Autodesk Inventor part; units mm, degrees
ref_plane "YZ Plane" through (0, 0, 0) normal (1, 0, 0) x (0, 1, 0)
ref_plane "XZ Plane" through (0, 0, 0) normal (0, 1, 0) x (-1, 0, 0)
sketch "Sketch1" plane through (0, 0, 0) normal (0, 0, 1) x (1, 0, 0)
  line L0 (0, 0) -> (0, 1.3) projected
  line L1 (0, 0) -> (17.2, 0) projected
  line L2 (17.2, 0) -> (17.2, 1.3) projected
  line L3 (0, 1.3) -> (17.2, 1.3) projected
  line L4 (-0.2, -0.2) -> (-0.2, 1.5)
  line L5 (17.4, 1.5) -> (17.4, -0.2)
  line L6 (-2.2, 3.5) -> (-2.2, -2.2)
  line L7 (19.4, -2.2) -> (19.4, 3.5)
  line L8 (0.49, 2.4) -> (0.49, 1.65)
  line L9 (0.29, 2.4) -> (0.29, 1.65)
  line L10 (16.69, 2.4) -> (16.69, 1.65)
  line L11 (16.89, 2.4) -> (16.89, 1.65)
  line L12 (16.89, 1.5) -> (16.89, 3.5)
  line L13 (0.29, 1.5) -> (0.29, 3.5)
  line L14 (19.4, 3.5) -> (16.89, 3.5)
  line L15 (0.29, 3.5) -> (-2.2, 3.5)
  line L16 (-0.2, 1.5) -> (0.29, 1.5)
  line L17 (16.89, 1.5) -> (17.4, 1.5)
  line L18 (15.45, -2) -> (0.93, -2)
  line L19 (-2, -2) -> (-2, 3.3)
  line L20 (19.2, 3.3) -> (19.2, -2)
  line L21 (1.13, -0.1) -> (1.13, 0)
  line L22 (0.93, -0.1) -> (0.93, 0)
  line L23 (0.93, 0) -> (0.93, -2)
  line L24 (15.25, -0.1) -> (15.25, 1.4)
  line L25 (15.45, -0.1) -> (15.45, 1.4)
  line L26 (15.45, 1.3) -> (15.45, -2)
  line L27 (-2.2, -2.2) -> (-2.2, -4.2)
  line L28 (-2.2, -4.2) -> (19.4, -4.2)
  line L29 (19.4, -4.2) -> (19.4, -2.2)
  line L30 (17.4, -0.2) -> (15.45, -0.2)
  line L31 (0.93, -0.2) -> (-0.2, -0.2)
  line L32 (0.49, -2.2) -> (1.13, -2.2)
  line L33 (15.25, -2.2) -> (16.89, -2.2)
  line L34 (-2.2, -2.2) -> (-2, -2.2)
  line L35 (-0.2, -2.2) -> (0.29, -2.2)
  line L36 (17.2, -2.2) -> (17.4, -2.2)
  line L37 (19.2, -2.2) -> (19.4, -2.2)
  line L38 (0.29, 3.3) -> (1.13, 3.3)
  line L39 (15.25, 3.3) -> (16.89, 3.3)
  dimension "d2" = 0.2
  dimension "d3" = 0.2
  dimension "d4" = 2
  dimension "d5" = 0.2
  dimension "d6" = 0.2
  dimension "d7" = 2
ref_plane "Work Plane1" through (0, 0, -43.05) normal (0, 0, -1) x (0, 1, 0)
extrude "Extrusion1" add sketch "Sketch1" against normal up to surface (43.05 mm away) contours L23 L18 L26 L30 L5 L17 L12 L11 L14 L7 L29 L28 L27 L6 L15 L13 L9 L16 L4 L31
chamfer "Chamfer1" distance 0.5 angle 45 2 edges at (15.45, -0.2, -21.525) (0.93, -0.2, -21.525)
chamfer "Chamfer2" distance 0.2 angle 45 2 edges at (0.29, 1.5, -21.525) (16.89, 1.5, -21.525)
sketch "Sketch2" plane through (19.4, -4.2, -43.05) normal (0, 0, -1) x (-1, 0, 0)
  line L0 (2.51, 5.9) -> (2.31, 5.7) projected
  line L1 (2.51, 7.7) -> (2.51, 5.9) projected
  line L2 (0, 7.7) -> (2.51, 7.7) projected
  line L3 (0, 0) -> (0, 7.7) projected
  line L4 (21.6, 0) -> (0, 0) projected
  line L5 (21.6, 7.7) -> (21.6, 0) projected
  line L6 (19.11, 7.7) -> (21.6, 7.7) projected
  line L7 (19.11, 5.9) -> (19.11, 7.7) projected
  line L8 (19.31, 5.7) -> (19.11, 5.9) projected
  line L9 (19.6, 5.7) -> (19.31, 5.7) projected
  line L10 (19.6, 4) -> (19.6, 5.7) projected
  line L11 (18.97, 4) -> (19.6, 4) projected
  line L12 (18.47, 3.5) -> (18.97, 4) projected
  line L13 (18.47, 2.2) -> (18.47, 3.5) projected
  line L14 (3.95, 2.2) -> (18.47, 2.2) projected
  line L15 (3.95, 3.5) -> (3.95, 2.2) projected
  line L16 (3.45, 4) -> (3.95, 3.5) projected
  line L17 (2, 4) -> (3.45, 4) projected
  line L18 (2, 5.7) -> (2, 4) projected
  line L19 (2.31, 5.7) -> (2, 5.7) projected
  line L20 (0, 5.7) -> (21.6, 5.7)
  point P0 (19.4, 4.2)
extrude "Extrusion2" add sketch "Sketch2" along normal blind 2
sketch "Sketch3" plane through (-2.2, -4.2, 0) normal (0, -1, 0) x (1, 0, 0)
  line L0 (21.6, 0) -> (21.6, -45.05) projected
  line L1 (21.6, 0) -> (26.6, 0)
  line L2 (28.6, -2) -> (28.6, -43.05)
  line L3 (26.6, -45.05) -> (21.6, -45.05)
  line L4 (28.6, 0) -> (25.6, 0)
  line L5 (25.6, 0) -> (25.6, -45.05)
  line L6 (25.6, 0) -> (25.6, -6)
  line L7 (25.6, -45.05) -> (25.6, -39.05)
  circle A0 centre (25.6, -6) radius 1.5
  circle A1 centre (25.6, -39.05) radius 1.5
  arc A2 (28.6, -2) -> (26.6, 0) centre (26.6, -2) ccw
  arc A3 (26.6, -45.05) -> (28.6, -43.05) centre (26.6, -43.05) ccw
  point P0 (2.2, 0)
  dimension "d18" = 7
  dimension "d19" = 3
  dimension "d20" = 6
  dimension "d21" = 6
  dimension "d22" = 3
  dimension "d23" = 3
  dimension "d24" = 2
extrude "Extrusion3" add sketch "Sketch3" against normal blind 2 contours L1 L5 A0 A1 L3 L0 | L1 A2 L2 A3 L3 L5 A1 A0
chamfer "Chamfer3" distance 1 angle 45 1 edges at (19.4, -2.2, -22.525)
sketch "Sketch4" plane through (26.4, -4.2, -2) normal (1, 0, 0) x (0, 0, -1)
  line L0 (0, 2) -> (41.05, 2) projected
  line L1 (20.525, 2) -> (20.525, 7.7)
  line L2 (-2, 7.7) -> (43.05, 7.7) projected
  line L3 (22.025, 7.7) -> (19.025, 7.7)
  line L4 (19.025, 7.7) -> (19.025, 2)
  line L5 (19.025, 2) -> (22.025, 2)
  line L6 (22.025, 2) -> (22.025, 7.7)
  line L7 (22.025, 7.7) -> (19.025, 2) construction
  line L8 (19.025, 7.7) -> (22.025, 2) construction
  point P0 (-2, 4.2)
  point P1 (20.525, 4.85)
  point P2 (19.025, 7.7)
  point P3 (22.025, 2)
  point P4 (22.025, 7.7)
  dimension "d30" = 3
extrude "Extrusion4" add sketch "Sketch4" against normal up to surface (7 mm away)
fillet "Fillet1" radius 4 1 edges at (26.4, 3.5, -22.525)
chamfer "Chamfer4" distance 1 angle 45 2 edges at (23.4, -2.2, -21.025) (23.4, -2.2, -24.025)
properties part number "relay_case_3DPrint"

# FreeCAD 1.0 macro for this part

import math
import FreeCAD as App
import Part
import Sketcher

V = App.Vector
Q = App.Units.Quantity


def edges_at(feature, points):
    """Names of the edges that pass closest to the given points."""
    edges = feature.Shape.Edges
    near = lambda p: min(range(len(edges)), key=lambda i: edges[i].distToShape(Part.Vertex(*p))[0])
    return sorted({f"Edge{near(p) + 1}" for p in points})

doc = App.newDocument("Part")
params = doc.addObject("Spreadsheet::Sheet", "Params")
for row, (alias, value) in enumerate([
    ("sketch1_height", "2 mm"),
    ("sketch1_width", "21.6 mm"),
    ("sketch1_height2", "1.7 mm"),
    ("sketch1_height3", "7.7 mm"),
    ("sketch1_width2", "1.13 mm"),
    ("pad1_length", "43.05 mm"),
    ("chamfer_size", "0.5 mm"),
    ("chamfer2_size", "0.2 mm"),
    ("sketch2_width", "17 mm"),
    ("sketch2_width2", "21.6 mm"),
    ("sketch2_height", "1.8 mm"),
    ("sketch2_height2", "7.7 mm"),
    ("sketch2_width3", "2.51 mm"),
    ("pad2_length", "2 mm"),
    ("sketch3_diameter", "3 mm"),
    ("sketch3_radius", "2 mm"),
    ("sketch3_height", "45.05 mm"),
    ("pad3_length", "2 mm"),
    ("chamfer3_size", "1 mm"),
    ("sketch4_height", "3 mm"),
    ("sketch4_width", "5.7 mm"),
    ("pad4_length", "7 mm"),
    ("fillet_radius", "4 mm"),
    ("chamfer4_size", "1 mm"),
], start=1):
    params.set(f"A{row}", alias)
    params.set(f"B{row}", "=" + value)
    params.setAlias(f"B{row}", alias)

body = doc.addObject("PartDesign::Body", "Body")

sketch1 = body.newObject("Sketcher::SketchObject", "Sketch")
sketch1.AttachmentSupport = (doc.getObject("XY_Plane"), [""])
sketch1.MapMode = "FlatFace"
sketch1.addGeometry([
    Part.LineSegment(V(0.93, -2, 0), V(0.93, -0.2, 0)),
    Part.LineSegment(V(0.93, -0.2, 0), V(-0.2, -0.2, 0)),
    Part.LineSegment(V(-0.2, -0.2, 0), V(-0.2, 1.5, 0)),
    Part.LineSegment(V(-0.2, 1.5, 0), V(0.29, 1.5, 0)),
    Part.LineSegment(V(0.29, 1.5, 0), V(0.29, 3.5, 0)),
    Part.LineSegment(V(0.29, 3.5, 0), V(-2.2, 3.5, 0)),
    Part.LineSegment(V(-2.2, 3.5, 0), V(-2.2, -4.2, 0)),
    Part.LineSegment(V(-2.2, -4.2, 0), V(19.4, -4.2, 0)),
    Part.LineSegment(V(19.4, -4.2, 0), V(19.4, 3.5, 0)),
    Part.LineSegment(V(19.4, 3.5, 0), V(16.89, 3.5, 0)),
    Part.LineSegment(V(16.89, 3.5, 0), V(16.89, 1.5, 0)),
    Part.LineSegment(V(16.89, 1.5, 0), V(17.4, 1.5, 0)),
    Part.LineSegment(V(17.4, 1.5, 0), V(17.4, -0.2, 0)),
    Part.LineSegment(V(17.4, -0.2, 0), V(15.45, -0.2, 0)),
    Part.LineSegment(V(15.45, -0.2, 0), V(15.45, -2, 0)),
    Part.LineSegment(V(15.45, -2, 0), V(0.93, -2, 0)),
], False)
sketch1.addConstraint([
    Sketcher.Constraint("Coincident", 0, 2, 1, 1),
    Sketcher.Constraint("Coincident", 1, 2, 2, 1),
    Sketcher.Constraint("Coincident", 2, 2, 3, 1),
    Sketcher.Constraint("Coincident", 3, 2, 4, 1),
    Sketcher.Constraint("Coincident", 4, 2, 5, 1),
    Sketcher.Constraint("Coincident", 5, 2, 6, 1),
    Sketcher.Constraint("Coincident", 6, 2, 7, 1),
    Sketcher.Constraint("Coincident", 7, 2, 8, 1),
    Sketcher.Constraint("Coincident", 8, 2, 9, 1),
    Sketcher.Constraint("Coincident", 9, 2, 10, 1),
    Sketcher.Constraint("Coincident", 10, 2, 11, 1),
    Sketcher.Constraint("Coincident", 11, 2, 12, 1),
    Sketcher.Constraint("Coincident", 12, 2, 13, 1),
    Sketcher.Constraint("Coincident", 13, 2, 14, 1),
    Sketcher.Constraint("Coincident", 14, 2, 15, 1),
    Sketcher.Constraint("Coincident", 15, 2, 0, 1),
    Sketcher.Constraint("Vertical", 0),
    Sketcher.Constraint("Horizontal", 1),
    Sketcher.Constraint("Vertical", 2),
    Sketcher.Constraint("Horizontal", 3),
    Sketcher.Constraint("Vertical", 4),
    Sketcher.Constraint("Horizontal", 5),
    Sketcher.Constraint("Vertical", 6),
    Sketcher.Constraint("Horizontal", 7),
    Sketcher.Constraint("Vertical", 8),
    Sketcher.Constraint("Horizontal", 9),
    Sketcher.Constraint("Vertical", 10),
    Sketcher.Constraint("Horizontal", 11),
    Sketcher.Constraint("Vertical", 12),
    Sketcher.Constraint("Horizontal", 13),
    Sketcher.Constraint("Vertical", 14),
    Sketcher.Constraint("Horizontal", 15),
    Sketcher.Constraint("Horizontal", 5, 2, 8, 2),
    Sketcher.Constraint("Horizontal", 3, 2, 10, 2),
    Sketcher.Constraint("Horizontal", 1, 2, 12, 2),
    Sketcher.Constraint("DistanceY", 4, 1, 4, 2, Q("2 mm")),
    Sketcher.Constraint("DistanceY", 14, 2, -1, 1, Q("2 mm")),
    Sketcher.Constraint("DistanceX", 5, 2, 2, 2, Q("2 mm")),
    Sketcher.Constraint("DistanceX", 11, 2, 8, 2, Q("2 mm")),
    Sketcher.Constraint("DistanceY", 0, 2, -1, 1, Q("0.2 mm")),
    Sketcher.Constraint("DistanceX", 1, 2, -1, 1, Q("0.2 mm")),
    Sketcher.Constraint("DistanceX", 7, 1, 7, 2, Q("21.6 mm")),
    Sketcher.Constraint("DistanceY", 2, 1, 2, 2, Q("1.7 mm")),
    Sketcher.Constraint("DistanceY", 6, 2, 6, 1, Q("7.7 mm")),
    Sketcher.Constraint("DistanceX", 1, 2, 1, 1, Q("1.13 mm")),
    Sketcher.Constraint("DistanceX", 3, 1, 3, 2, Q("0.49 mm")),
    Sketcher.Constraint("DistanceX", 9, 2, 9, 1, Q("2.51 mm")),
    Sketcher.Constraint("DistanceX", 13, 2, 13, 1, Q("1.95 mm")),
])
sketch1.setExpression("Constraints[35]", "Params.sketch1_height")
sketch1.setExpression("Constraints[41]", "Params.sketch1_width")
sketch1.setExpression("Constraints[42]", "Params.sketch1_height2")
sketch1.setExpression("Constraints[43]", "Params.sketch1_height3")
sketch1.setExpression("Constraints[44]", "Params.sketch1_width2")
pad1 = body.newObject("PartDesign::Pad", "Pad")
pad1.Profile = sketch1
pad1.setExpression("Length", "Params.pad1_length")
pad1.Reversed = True
doc.recompute()

chamfer = body.newObject("PartDesign::Chamfer", "Chamfer")
chamfer.Base = (pad1, edges_at(pad1, [(15.45, -0.2, -21.525), (0.93, -0.2, -21.525)]))
chamfer.setExpression("Size", "Params.chamfer_size")
doc.recompute()

chamfer2 = body.newObject("PartDesign::Chamfer", "Chamfer001")
chamfer2.Base = (chamfer, edges_at(chamfer, [(0.29, 1.5, -21.525), (16.89, 1.5, -21.525)]))
chamfer2.setExpression("Size", "Params.chamfer2_size")

sketch2 = body.newObject("Sketcher::SketchObject", "Sketch001")
sketch2.AttachmentSupport = (doc.getObject("XY_Plane"), [""])
sketch2.MapMode = "FlatFace"
sketch2.AttachmentOffset = App.Placement(V(0, 0, -43.05), App.Rotation())
sketch2.addGeometry([
    Part.LineSegment(V(17.09, 1.5, 0), V(16.89, 1.7, 0)),
    Part.LineSegment(V(16.89, 1.7, 0), V(16.89, 3.5, 0)),
    Part.LineSegment(V(16.89, 3.5, 0), V(19.4, 3.5, 0)),
    Part.LineSegment(V(19.4, 3.5, 0), V(19.4, -4.2, 0)),
    Part.LineSegment(V(19.4, -4.2, 0), V(-2.2, -4.2, 0)),
    Part.LineSegment(V(-2.2, -4.2, 0), V(-2.2, 3.5, 0)),
    Part.LineSegment(V(-2.2, 3.5, 0), V(0.29, 3.5, 0)),
    Part.LineSegment(V(0.29, 3.5, 0), V(0.29, 1.7, 0)),
    Part.LineSegment(V(0.29, 1.7, 0), V(0.09, 1.5, 0)),
    Part.LineSegment(V(0.09, 1.5, 0), V(17.09, 1.5, 0)),
], False)
sketch2.addConstraint([
    Sketcher.Constraint("Coincident", 0, 2, 1, 1),
    Sketcher.Constraint("Coincident", 1, 2, 2, 1),
    Sketcher.Constraint("Coincident", 2, 2, 3, 1),
    Sketcher.Constraint("Coincident", 3, 2, 4, 1),
    Sketcher.Constraint("Coincident", 4, 2, 5, 1),
    Sketcher.Constraint("Coincident", 5, 2, 6, 1),
    Sketcher.Constraint("Coincident", 6, 2, 7, 1),
    Sketcher.Constraint("Coincident", 7, 2, 8, 1),
    Sketcher.Constraint("Coincident", 8, 2, 9, 1),
    Sketcher.Constraint("Coincident", 9, 2, 0, 1),
    Sketcher.Constraint("Vertical", 1),
    Sketcher.Constraint("Horizontal", 2),
    Sketcher.Constraint("Vertical", 3),
    Sketcher.Constraint("Horizontal", 4),
    Sketcher.Constraint("Vertical", 5),
    Sketcher.Constraint("Horizontal", 6),
    Sketcher.Constraint("Vertical", 7),
    Sketcher.Constraint("Horizontal", 9),
    Sketcher.Constraint("Perpendicular", 0, 8),
    Sketcher.Constraint("Horizontal", 2, 2, 5, 2),
    Sketcher.Constraint("Horizontal", 0, 2, 7, 2),
    Sketcher.Constraint("Equal", 0, 8),
    Sketcher.Constraint("DistanceX", 9, 1, 9, 2, Q("17 mm")),
    Sketcher.Constraint("DistanceX", 4, 2, 4, 1, Q("21.6 mm")),
    Sketcher.Constraint("DistanceY", 1, 1, 1, 2, Q("1.8 mm")),
    Sketcher.Constraint("DistanceY", 3, 2, 3, 1, Q("7.7 mm")),
    Sketcher.Constraint("DistanceY", 8, 2, 6, 2, Q("2 mm")),
    Sketcher.Constraint("DistanceX", 2, 1, 2, 2, Q("2.51 mm")),
    Sketcher.Constraint("DistanceY", -1, 1, 0, 2, Q("1.7 mm")),
    Sketcher.Constraint("DistanceX", -1, 1, 2, 2, Q("19.4 mm")),
])
sketch2.setExpression("Constraints[22]", "Params.sketch2_width")
sketch2.setExpression("Constraints[23]", "Params.sketch2_width2")
sketch2.setExpression("Constraints[24]", "Params.sketch2_height")
sketch2.setExpression("Constraints[25]", "Params.sketch2_height2")
sketch2.setExpression("Constraints[27]", "Params.sketch2_width3")
pad2 = body.newObject("PartDesign::Pad", "Pad001")
pad2.Profile = sketch2
pad2.setExpression("Length", "Params.pad2_length")
pad2.Reversed = True

sketch3 = body.newObject("Sketcher::SketchObject", "Sketch002")
sketch3.AttachmentSupport = (doc.getObject("XZ_Plane"), [""])
sketch3.MapMode = "FlatFace"
sketch3.AttachmentOffset = App.Placement(V(0, 0, 4.2), App.Rotation())
sketch3.addGeometry([
    Part.LineSegment(V(19.4, 0, 0), V(19.4, -45, 0)),
    Part.LineSegment(V(19.4, -45, 0), V(24.4, -45, 0)),
    Part.ArcOfCircle(Part.Circle(V(24.4, -43, 0), V(0, 0, 1), 2), math.radians(-90), math.radians(0)),
    Part.LineSegment(V(26.4, -43, 0), V(26.4, -2, 0)),
    Part.ArcOfCircle(Part.Circle(V(24.4, -2, 0), V(0, 0, 1), 2), math.radians(0), math.radians(90)),
    Part.LineSegment(V(24.4, 0, 0), V(19.4, 0, 0)),
    Part.Circle(V(23.4, -6, 0), V(0, 0, 1), 1.5),
    Part.Circle(V(23.4, -39, 0), V(0, 0, 1), 1.5),
], False)
sketch3.addConstraint([
    Sketcher.Constraint("Coincident", 0, 2, 1, 1),
    Sketcher.Constraint("Tangent", 1, 2, 2, 1),
    Sketcher.Constraint("Tangent", 2, 2, 3, 1),
    Sketcher.Constraint("Tangent", 3, 2, 4, 1),
    Sketcher.Constraint("Tangent", 4, 2, 5, 1),
    Sketcher.Constraint("Coincident", 5, 2, 0, 1),
    Sketcher.Constraint("Vertical", 0),
    Sketcher.Constraint("Horizontal", 1),
    Sketcher.Constraint("Vertical", 3),
    Sketcher.Constraint("Horizontal", 5),
    Sketcher.Constraint("Equal", 2, 4),
    Sketcher.Constraint("Equal", 6, 7),
    Sketcher.Constraint("PointOnObject", 4, 2, -1),
    Sketcher.Constraint("Vertical", 6, 3, 7, 3),
    Sketcher.Constraint("Diameter", 6, Q("3 mm")),
    Sketcher.Constraint("Radius", 2, Q("2 mm")),
    Sketcher.Constraint("DistanceY", 6, 3, -1, 1, Q("6 mm")),
    Sketcher.Constraint("DistanceY", 0, 2, 7, 3, Q("6 mm")),
    Sketcher.Constraint("DistanceX", 7, 3, 2, 2, Q("3 mm")),
    Sketcher.Constraint("DistanceX", 0, 2, 2, 2, Q("7 mm")),
    Sketcher.Constraint("DistanceY", 0, 2, 0, 1, Q("45.05 mm")),
    Sketcher.Constraint("DistanceX", -1, 1, 2, 3, Q("24.4 mm")),
])
sketch3.setExpression("Constraints[14]", "Params.sketch3_diameter")
sketch3.setExpression("Constraints[15]", "Params.sketch3_radius")
sketch3.setExpression("Constraints[20]", "Params.sketch3_height")
pad3 = body.newObject("PartDesign::Pad", "Pad002")
pad3.Profile = sketch3
pad3.setExpression("Length", "Params.pad3_length")
pad3.Reversed = True
doc.recompute()

chamfer3 = body.newObject("PartDesign::Chamfer", "Chamfer002")
chamfer3.Base = (pad3, edges_at(pad3, [(19.4, -2.2, -22.525)]))
chamfer3.setExpression("Size", "Params.chamfer3_size")

sketch4 = body.newObject("Sketcher::SketchObject", "Sketch003")
sketch4.AttachmentSupport = (doc.getObject("YZ_Plane"), [""])
sketch4.MapMode = "FlatFace"
sketch4.AttachmentOffset = App.Placement(V(0, 0, 26.4), App.Rotation())
sketch4.addGeometry([
    Part.LineSegment(V(3.5, -21, 0), V(-2.2, -21, 0)),
    Part.LineSegment(V(-2.2, -21, 0), V(-2.2, -24, 0)),
    Part.LineSegment(V(-2.2, -24, 0), V(3.5, -24, 0)),
    Part.LineSegment(V(3.5, -24, 0), V(3.5, -21, 0)),
], False)
sketch4.addConstraint([
    Sketcher.Constraint("Coincident", 0, 2, 1, 1),
    Sketcher.Constraint("Coincident", 1, 2, 2, 1),
    Sketcher.Constraint("Coincident", 2, 2, 3, 1),
    Sketcher.Constraint("Coincident", 3, 2, 0, 1),
    Sketcher.Constraint("Horizontal", 0),
    Sketcher.Constraint("Vertical", 1),
    Sketcher.Constraint("Horizontal", 2),
    Sketcher.Constraint("Vertical", 3),
    Sketcher.Constraint("DistanceY", 1, 2, 1, 1, Q("3 mm")),
    Sketcher.Constraint("DistanceX", 0, 2, 0, 1, Q("5.7 mm")),
    Sketcher.Constraint("DistanceX", 0, 2, -1, 1, Q("2.2 mm")),
    Sketcher.Constraint("DistanceY", 0, 2, -1, 1, Q("21.025 mm")),
])
sketch4.setExpression("Constraints[8]", "Params.sketch4_height")
sketch4.setExpression("Constraints[9]", "Params.sketch4_width")
pad4 = body.newObject("PartDesign::Pad", "Pad003")
pad4.Profile = sketch4
pad4.setExpression("Length", "Params.pad4_length")
pad4.Reversed = True
doc.recompute()

fillet = body.newObject("PartDesign::Fillet", "Fillet")
fillet.Base = (pad4, edges_at(pad4, [(26.4, 3.5, -22.525)]))
fillet.setExpression("Radius", "Params.fillet_radius")
doc.recompute()

chamfer4 = body.newObject("PartDesign::Chamfer", "Chamfer003")
chamfer4.Base = (fillet, edges_at(fillet, [(23.4, -2.2, -21.025), (23.4, -2.2, -24.025)]))
chamfer4.setExpression("Size", "Params.chamfer4_size")

doc.recompute()
